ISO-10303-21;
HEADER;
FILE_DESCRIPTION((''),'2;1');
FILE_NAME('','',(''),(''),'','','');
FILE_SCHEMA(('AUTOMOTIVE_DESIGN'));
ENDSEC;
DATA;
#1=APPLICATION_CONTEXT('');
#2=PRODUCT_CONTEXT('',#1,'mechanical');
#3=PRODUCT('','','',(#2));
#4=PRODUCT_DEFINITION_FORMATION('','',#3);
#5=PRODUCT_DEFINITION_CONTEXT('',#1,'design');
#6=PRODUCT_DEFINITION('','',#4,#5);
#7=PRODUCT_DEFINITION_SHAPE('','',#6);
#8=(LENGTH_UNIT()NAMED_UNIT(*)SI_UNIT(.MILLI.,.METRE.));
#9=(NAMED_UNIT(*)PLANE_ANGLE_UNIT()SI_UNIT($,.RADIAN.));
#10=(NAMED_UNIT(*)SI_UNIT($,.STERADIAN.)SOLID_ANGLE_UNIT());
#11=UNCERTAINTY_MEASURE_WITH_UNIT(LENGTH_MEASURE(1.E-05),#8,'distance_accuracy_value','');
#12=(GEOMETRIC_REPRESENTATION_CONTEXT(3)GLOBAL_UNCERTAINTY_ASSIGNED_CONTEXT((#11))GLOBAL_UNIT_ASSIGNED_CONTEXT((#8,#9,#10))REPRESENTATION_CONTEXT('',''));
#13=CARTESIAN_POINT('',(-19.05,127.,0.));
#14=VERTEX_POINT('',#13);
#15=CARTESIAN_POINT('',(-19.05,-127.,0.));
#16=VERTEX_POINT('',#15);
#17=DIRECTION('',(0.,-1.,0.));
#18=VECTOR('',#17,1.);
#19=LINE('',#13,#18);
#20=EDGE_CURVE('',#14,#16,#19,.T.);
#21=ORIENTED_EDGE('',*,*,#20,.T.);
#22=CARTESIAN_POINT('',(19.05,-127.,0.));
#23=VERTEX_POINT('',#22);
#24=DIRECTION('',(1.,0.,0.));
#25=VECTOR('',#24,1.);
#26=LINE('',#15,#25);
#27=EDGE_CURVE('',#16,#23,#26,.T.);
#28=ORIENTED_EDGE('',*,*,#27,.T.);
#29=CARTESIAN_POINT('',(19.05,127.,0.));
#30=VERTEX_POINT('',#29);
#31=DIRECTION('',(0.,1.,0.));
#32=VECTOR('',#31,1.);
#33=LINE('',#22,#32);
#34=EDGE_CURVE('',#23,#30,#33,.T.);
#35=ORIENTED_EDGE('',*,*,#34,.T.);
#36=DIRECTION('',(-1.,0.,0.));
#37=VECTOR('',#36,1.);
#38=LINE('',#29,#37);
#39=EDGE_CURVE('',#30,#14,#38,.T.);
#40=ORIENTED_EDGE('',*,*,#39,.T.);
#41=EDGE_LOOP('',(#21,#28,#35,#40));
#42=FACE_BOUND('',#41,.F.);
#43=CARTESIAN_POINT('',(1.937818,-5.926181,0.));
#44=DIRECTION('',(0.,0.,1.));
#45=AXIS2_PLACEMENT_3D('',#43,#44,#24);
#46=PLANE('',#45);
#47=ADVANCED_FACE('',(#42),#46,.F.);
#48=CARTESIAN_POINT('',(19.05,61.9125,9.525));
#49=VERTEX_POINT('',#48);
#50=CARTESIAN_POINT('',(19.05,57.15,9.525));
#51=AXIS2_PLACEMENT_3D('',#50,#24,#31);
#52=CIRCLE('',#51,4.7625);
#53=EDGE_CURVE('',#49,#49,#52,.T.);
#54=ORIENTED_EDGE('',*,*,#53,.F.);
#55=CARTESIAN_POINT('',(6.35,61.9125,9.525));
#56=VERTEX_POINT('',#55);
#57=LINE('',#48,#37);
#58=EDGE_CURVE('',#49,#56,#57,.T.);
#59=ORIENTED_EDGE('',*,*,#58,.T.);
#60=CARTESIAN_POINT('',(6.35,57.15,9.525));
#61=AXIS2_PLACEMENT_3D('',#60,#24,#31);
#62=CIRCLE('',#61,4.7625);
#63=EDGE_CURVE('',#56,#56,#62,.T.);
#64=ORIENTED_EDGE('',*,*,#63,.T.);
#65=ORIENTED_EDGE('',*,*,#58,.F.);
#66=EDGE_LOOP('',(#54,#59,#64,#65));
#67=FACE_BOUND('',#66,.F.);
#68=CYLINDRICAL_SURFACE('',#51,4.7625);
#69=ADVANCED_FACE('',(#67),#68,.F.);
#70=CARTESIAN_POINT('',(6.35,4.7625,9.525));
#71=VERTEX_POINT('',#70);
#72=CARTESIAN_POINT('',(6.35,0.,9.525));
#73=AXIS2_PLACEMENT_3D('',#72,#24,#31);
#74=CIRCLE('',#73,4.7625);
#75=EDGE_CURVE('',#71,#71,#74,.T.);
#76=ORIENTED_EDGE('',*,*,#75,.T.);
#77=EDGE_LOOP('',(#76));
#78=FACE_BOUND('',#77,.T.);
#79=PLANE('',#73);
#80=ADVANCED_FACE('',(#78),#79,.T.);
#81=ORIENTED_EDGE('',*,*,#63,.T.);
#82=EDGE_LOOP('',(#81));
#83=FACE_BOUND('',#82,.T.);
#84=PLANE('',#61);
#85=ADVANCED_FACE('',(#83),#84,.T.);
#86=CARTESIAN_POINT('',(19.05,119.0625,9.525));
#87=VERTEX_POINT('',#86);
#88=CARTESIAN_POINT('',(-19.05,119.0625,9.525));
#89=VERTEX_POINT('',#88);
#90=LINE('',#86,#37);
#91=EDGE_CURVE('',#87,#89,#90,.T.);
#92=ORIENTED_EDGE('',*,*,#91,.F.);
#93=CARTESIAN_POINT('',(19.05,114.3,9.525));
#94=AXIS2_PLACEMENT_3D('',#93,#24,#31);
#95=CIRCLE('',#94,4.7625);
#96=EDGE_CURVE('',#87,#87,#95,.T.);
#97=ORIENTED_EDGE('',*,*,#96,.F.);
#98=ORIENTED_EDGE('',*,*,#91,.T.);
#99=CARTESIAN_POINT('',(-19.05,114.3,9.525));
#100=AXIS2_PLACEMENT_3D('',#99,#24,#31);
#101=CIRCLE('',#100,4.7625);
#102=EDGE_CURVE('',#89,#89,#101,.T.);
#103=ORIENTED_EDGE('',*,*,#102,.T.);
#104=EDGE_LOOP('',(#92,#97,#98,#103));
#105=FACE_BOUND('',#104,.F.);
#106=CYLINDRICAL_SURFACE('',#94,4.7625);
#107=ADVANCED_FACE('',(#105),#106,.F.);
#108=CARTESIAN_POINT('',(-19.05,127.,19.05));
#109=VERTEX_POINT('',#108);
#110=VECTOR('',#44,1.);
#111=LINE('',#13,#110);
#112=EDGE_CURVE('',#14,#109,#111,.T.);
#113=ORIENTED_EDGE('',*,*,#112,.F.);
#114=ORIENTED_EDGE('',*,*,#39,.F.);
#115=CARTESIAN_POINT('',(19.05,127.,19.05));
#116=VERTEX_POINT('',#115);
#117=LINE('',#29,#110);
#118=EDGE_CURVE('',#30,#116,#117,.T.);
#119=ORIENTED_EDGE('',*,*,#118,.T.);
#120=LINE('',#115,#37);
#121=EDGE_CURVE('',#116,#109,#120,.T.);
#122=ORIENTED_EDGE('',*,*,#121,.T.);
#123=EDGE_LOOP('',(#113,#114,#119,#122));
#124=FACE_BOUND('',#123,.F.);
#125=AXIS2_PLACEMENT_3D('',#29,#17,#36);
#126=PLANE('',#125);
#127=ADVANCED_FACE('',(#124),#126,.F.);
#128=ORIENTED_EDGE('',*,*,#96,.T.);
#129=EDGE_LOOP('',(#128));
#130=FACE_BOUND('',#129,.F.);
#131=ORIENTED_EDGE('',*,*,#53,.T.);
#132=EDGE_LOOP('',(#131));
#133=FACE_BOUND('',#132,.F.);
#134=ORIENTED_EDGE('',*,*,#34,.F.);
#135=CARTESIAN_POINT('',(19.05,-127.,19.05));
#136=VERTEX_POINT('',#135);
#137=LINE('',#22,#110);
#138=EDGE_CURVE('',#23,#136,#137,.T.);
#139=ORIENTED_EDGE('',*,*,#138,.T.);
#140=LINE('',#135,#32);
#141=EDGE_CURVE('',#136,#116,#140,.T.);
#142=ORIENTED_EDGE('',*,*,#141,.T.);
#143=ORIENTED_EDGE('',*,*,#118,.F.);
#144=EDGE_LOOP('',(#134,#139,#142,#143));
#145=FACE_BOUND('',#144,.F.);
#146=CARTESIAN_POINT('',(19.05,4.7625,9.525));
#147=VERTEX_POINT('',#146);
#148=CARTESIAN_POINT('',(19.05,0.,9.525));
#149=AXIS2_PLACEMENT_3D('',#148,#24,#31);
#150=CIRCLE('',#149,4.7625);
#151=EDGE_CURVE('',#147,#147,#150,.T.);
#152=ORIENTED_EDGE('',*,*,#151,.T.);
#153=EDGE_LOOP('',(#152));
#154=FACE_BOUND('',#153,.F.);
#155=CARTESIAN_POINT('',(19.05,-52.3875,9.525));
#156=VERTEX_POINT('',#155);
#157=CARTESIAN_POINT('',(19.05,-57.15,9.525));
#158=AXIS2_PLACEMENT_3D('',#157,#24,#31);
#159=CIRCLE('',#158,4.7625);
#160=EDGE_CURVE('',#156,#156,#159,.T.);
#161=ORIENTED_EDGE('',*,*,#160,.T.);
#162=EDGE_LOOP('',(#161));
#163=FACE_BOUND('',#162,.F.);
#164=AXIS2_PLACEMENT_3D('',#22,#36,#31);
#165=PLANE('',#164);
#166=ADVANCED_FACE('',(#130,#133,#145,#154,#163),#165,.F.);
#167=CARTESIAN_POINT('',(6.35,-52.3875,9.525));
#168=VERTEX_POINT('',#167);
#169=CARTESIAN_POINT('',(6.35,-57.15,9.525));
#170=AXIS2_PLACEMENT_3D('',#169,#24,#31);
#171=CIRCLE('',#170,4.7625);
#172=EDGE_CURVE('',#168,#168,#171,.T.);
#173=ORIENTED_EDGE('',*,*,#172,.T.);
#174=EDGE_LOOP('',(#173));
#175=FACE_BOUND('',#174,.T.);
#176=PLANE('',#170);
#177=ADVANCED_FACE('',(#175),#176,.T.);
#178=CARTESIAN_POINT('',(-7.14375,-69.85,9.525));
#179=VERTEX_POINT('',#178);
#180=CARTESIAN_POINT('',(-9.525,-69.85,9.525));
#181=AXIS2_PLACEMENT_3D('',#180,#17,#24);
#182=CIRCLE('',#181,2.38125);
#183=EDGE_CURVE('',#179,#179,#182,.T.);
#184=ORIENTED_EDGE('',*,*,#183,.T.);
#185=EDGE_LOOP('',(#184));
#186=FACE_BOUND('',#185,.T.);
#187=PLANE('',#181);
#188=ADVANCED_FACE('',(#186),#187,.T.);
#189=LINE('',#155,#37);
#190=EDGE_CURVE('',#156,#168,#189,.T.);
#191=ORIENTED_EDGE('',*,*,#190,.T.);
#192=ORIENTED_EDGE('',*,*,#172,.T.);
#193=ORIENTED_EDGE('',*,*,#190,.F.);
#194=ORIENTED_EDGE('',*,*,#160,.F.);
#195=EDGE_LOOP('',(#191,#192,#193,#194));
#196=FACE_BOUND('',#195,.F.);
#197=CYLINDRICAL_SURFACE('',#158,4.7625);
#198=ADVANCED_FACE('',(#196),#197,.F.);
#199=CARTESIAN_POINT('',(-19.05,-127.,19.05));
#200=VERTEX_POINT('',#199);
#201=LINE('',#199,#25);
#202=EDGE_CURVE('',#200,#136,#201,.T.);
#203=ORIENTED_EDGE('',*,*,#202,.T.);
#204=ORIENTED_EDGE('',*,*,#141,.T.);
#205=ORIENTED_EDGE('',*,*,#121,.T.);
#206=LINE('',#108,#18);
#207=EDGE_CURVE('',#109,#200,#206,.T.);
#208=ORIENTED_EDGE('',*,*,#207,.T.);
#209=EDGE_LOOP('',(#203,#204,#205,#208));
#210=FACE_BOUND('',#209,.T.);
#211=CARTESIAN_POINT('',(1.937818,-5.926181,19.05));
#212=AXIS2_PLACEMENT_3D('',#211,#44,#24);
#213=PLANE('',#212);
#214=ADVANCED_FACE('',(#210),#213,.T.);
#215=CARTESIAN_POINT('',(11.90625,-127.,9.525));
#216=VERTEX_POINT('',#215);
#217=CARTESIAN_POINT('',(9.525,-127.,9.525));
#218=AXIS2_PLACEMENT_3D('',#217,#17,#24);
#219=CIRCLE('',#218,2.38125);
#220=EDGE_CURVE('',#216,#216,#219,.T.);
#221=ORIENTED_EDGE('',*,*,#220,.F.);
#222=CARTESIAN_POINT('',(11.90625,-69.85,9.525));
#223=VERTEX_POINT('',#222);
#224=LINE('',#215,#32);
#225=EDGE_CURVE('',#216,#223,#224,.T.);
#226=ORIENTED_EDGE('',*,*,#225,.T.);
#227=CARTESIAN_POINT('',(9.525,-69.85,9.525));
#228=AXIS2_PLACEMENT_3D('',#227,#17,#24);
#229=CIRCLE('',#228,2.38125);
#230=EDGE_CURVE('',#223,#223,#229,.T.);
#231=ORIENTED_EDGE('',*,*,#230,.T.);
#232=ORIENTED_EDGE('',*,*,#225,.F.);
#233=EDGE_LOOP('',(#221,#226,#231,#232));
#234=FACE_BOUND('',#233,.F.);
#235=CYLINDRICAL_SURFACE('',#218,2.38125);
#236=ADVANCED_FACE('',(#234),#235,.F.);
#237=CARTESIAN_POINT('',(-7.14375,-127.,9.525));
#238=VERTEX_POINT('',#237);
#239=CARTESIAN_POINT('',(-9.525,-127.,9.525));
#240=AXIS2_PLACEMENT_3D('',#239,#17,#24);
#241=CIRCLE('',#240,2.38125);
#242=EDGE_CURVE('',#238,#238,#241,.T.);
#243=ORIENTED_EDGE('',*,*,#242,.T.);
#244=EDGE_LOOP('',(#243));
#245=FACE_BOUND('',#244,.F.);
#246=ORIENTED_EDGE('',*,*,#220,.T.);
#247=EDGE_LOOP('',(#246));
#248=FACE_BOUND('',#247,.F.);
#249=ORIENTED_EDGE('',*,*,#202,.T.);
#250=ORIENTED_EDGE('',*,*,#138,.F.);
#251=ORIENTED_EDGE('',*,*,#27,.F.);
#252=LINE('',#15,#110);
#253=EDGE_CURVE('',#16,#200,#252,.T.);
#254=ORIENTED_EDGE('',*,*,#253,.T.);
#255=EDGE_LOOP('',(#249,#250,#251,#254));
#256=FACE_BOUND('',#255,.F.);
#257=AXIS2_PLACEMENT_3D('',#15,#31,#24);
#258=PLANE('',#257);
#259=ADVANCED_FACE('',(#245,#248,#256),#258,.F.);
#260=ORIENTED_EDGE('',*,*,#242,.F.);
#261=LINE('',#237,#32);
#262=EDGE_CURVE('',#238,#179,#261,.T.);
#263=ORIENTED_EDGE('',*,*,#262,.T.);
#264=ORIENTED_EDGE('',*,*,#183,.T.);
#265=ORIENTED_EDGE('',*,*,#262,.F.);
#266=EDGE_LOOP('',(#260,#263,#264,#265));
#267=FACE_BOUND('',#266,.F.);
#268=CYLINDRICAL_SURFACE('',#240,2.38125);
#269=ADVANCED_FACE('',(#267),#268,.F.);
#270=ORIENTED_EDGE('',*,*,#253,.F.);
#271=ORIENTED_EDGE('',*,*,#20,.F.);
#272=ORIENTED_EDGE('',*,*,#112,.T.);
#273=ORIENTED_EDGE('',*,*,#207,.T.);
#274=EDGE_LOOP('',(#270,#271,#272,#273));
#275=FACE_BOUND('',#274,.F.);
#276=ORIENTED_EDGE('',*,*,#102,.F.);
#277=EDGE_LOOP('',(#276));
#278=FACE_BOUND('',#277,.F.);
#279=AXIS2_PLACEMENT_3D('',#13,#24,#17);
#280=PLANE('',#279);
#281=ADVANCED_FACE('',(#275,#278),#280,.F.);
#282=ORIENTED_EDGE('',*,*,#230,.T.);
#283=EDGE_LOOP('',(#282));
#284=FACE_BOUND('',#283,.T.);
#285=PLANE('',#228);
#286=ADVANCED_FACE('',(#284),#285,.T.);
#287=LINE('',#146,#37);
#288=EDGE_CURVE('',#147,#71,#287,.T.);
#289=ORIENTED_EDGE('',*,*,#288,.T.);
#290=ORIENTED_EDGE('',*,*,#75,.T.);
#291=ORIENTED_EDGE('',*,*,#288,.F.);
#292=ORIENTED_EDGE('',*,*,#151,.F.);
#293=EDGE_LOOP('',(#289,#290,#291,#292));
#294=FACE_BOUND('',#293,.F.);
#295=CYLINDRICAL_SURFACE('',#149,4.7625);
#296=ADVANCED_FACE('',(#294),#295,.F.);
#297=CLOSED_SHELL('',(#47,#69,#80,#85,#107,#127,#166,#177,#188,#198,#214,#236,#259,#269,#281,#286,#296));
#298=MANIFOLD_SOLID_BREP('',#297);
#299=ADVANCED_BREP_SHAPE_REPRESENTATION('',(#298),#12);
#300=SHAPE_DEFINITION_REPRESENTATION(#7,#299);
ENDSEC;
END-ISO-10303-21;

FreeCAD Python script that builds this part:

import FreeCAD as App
import Part
import Sketcher
Q = App.Units.Quantity

doc = App.newDocument("Part")
body = doc.addObject("PartDesign::Body", "Body")

# Sketch on XY plane
sketch1 = doc.addObject("Sketcher::SketchObject", "Sketch")
body.addObject(sketch1)
sketch1.AttachmentSupport = (doc.XY_Plane, [""])
sketch1.MapMode = "FlatFace"
sketch1.addGeometry(Part.LineSegment(App.Vector(19.05, -127, 0), App.Vector(19.05, 127, 0)), False)
sketch1.addGeometry(Part.LineSegment(App.Vector(19.05, 127, 0), App.Vector(-19.05, 127, 0)), False)
sketch1.addGeometry(Part.LineSegment(App.Vector(-19.05, 127, 0), App.Vector(-19.05, -127, 0)), False)
sketch1.addGeometry(Part.LineSegment(App.Vector(-19.05, -127, 0), App.Vector(19.05, -127, 0)), False)
sketch1.addConstraint(Sketcher.Constraint("Coincident", 0, 2, 1, 1))
sketch1.addConstraint(Sketcher.Constraint("Coincident", 1, 2, 2, 1))
sketch1.addConstraint(Sketcher.Constraint("Coincident", 2, 2, 3, 1))
sketch1.addConstraint(Sketcher.Constraint("Coincident", 3, 2, 0, 1))
sketch1.addConstraint(Sketcher.Constraint("Vertical", 0))
sketch1.addConstraint(Sketcher.Constraint("Horizontal", 1))
sketch1.addConstraint(Sketcher.Constraint("Vertical", 2))
sketch1.addConstraint(Sketcher.Constraint("Horizontal", 3))
sketch1.addConstraint(Sketcher.Constraint("Symmetric", 0, 2, 2, 2, -1, 1))
sketch1.addConstraint(Sketcher.Constraint("DistanceY", 0, 1, 0, 2, Q("10 in")))
sketch1.addConstraint(Sketcher.Constraint("DistanceX", 1, 2, 1, 1, Q("1.5 in")))
pad1 = doc.addObject("PartDesign::Pad", "Pad")
body.addObject(pad1)
pad1.Profile = sketch1
pad1.Length = Q("0.75 in")

# Sketch on YZ plane
sketch2 = doc.addObject("Sketcher::SketchObject", "Sketch001")
body.addObject(sketch2)
sketch2.AttachmentSupport = (doc.YZ_Plane, [""])
sketch2.MapMode = "FlatFace"
sketch2.AttachmentOffset = App.Placement(App.Vector(0, 0, 0.75 * 25.4), App.Rotation())
sketch2.addGeometry(Part.Circle(App.Vector(114.3, 9.525, 0), App.Vector(0, 0, 1), 4.7625), False)
sketch2.addConstraint(Sketcher.Constraint("Diameter", 0, Q("0.375 in")))
sketch2.addConstraint(Sketcher.Constraint("DistanceX", -1, 1, 0, 3, Q("4.5 in")))
sketch2.addConstraint(Sketcher.Constraint("DistanceY", -1, 1, 0, 3, Q("0.375 in")))
pocket1 = doc.addObject("PartDesign::Pocket", "Pocket")
body.addObject(pocket1)
pocket1.Profile = sketch2
pocket1.Type = "ThroughAll"

# Sketch on XZ plane
sketch3 = doc.addObject("Sketcher::SketchObject", "Sketch002")
body.addObject(sketch3)
sketch3.AttachmentSupport = (doc.XZ_Plane, [""])
sketch3.MapMode = "FlatFace"
sketch3.AttachmentOffset = App.Placement(App.Vector(0, 0, 5 * 25.4), App.Rotation())
sketch3.addGeometry(Part.Circle(App.Vector(-9.525, 9.525, 0), App.Vector(0, 0, 1), 2.38125), False)
sketch3.addGeometry(Part.Circle(App.Vector(9.525, 9.525, 0), App.Vector(0, 0, 1), 2.38125), False)
sketch3.addConstraint(Sketcher.Constraint("Equal", 0, 1))
sketch3.addConstraint(Sketcher.Constraint("Symmetric", 0, 3, 1, 3, -2))
sketch3.addConstraint(Sketcher.Constraint("Diameter", 0, Q("0.1875 in")))
sketch3.addConstraint(Sketcher.Constraint("DistanceX", 0, 3, 1, 3, Q("0.75 in")))
sketch3.addConstraint(Sketcher.Constraint("DistanceY", -1, 1, 0, 3, Q("0.375 in")))
pocket2 = doc.addObject("PartDesign::Pocket", "Pocket001")
body.addObject(pocket2)
pocket2.Profile = sketch3
pocket2.Length = Q("2.25 in")

# Sketch on YZ plane
sketch4 = doc.addObject("Sketcher::SketchObject", "Sketch003")
body.addObject(sketch4)
sketch4.AttachmentSupport = (doc.YZ_Plane, [""])
sketch4.MapMode = "FlatFace"
sketch4.AttachmentOffset = App.Placement(App.Vector(0, 0, 0.75 * 25.4), App.Rotation())
sketch4.addGeometry(Part.Circle(App.Vector(-57.15, 9.525, 0), App.Vector(0, 0, 1), 4.7625), False)
sketch4.addGeometry(Part.Circle(App.Vector(0, 9.525, 0), App.Vector(0, 0, 1), 4.7625), False)
sketch4.addGeometry(Part.Circle(App.Vector(57.15, 9.525, 0), App.Vector(0, 0, 1), 4.7625), False)
sketch4.addConstraint(Sketcher.Constraint("Equal", 0, 1))
sketch4.addConstraint(Sketcher.Constraint("Equal", 1, 2))
sketch4.addConstraint(Sketcher.Constraint("Symmetric", 0, 3, 2, 3, -2))
sketch4.addConstraint(Sketcher.Constraint("PointOnObject", 1, 3, -2))
sketch4.addConstraint(Sketcher.Constraint("Horizontal", 0, 3, 1, 3))
sketch4.addConstraint(Sketcher.Constraint("Diameter", 0, Q("0.375 in")))
sketch4.addConstraint(Sketcher.Constraint("DistanceX", 0, 3, 2, 3, Q("4.5 in")))
sketch4.addConstraint(Sketcher.Constraint("DistanceY", -1, 1, 0, 3, Q("0.375 in")))
pocket3 = doc.addObject("PartDesign::Pocket", "Pocket002")
body.addObject(pocket3)
pocket3.Profile = sketch4
pocket3.Length = Q("0.5 in")

doc.recompute()
